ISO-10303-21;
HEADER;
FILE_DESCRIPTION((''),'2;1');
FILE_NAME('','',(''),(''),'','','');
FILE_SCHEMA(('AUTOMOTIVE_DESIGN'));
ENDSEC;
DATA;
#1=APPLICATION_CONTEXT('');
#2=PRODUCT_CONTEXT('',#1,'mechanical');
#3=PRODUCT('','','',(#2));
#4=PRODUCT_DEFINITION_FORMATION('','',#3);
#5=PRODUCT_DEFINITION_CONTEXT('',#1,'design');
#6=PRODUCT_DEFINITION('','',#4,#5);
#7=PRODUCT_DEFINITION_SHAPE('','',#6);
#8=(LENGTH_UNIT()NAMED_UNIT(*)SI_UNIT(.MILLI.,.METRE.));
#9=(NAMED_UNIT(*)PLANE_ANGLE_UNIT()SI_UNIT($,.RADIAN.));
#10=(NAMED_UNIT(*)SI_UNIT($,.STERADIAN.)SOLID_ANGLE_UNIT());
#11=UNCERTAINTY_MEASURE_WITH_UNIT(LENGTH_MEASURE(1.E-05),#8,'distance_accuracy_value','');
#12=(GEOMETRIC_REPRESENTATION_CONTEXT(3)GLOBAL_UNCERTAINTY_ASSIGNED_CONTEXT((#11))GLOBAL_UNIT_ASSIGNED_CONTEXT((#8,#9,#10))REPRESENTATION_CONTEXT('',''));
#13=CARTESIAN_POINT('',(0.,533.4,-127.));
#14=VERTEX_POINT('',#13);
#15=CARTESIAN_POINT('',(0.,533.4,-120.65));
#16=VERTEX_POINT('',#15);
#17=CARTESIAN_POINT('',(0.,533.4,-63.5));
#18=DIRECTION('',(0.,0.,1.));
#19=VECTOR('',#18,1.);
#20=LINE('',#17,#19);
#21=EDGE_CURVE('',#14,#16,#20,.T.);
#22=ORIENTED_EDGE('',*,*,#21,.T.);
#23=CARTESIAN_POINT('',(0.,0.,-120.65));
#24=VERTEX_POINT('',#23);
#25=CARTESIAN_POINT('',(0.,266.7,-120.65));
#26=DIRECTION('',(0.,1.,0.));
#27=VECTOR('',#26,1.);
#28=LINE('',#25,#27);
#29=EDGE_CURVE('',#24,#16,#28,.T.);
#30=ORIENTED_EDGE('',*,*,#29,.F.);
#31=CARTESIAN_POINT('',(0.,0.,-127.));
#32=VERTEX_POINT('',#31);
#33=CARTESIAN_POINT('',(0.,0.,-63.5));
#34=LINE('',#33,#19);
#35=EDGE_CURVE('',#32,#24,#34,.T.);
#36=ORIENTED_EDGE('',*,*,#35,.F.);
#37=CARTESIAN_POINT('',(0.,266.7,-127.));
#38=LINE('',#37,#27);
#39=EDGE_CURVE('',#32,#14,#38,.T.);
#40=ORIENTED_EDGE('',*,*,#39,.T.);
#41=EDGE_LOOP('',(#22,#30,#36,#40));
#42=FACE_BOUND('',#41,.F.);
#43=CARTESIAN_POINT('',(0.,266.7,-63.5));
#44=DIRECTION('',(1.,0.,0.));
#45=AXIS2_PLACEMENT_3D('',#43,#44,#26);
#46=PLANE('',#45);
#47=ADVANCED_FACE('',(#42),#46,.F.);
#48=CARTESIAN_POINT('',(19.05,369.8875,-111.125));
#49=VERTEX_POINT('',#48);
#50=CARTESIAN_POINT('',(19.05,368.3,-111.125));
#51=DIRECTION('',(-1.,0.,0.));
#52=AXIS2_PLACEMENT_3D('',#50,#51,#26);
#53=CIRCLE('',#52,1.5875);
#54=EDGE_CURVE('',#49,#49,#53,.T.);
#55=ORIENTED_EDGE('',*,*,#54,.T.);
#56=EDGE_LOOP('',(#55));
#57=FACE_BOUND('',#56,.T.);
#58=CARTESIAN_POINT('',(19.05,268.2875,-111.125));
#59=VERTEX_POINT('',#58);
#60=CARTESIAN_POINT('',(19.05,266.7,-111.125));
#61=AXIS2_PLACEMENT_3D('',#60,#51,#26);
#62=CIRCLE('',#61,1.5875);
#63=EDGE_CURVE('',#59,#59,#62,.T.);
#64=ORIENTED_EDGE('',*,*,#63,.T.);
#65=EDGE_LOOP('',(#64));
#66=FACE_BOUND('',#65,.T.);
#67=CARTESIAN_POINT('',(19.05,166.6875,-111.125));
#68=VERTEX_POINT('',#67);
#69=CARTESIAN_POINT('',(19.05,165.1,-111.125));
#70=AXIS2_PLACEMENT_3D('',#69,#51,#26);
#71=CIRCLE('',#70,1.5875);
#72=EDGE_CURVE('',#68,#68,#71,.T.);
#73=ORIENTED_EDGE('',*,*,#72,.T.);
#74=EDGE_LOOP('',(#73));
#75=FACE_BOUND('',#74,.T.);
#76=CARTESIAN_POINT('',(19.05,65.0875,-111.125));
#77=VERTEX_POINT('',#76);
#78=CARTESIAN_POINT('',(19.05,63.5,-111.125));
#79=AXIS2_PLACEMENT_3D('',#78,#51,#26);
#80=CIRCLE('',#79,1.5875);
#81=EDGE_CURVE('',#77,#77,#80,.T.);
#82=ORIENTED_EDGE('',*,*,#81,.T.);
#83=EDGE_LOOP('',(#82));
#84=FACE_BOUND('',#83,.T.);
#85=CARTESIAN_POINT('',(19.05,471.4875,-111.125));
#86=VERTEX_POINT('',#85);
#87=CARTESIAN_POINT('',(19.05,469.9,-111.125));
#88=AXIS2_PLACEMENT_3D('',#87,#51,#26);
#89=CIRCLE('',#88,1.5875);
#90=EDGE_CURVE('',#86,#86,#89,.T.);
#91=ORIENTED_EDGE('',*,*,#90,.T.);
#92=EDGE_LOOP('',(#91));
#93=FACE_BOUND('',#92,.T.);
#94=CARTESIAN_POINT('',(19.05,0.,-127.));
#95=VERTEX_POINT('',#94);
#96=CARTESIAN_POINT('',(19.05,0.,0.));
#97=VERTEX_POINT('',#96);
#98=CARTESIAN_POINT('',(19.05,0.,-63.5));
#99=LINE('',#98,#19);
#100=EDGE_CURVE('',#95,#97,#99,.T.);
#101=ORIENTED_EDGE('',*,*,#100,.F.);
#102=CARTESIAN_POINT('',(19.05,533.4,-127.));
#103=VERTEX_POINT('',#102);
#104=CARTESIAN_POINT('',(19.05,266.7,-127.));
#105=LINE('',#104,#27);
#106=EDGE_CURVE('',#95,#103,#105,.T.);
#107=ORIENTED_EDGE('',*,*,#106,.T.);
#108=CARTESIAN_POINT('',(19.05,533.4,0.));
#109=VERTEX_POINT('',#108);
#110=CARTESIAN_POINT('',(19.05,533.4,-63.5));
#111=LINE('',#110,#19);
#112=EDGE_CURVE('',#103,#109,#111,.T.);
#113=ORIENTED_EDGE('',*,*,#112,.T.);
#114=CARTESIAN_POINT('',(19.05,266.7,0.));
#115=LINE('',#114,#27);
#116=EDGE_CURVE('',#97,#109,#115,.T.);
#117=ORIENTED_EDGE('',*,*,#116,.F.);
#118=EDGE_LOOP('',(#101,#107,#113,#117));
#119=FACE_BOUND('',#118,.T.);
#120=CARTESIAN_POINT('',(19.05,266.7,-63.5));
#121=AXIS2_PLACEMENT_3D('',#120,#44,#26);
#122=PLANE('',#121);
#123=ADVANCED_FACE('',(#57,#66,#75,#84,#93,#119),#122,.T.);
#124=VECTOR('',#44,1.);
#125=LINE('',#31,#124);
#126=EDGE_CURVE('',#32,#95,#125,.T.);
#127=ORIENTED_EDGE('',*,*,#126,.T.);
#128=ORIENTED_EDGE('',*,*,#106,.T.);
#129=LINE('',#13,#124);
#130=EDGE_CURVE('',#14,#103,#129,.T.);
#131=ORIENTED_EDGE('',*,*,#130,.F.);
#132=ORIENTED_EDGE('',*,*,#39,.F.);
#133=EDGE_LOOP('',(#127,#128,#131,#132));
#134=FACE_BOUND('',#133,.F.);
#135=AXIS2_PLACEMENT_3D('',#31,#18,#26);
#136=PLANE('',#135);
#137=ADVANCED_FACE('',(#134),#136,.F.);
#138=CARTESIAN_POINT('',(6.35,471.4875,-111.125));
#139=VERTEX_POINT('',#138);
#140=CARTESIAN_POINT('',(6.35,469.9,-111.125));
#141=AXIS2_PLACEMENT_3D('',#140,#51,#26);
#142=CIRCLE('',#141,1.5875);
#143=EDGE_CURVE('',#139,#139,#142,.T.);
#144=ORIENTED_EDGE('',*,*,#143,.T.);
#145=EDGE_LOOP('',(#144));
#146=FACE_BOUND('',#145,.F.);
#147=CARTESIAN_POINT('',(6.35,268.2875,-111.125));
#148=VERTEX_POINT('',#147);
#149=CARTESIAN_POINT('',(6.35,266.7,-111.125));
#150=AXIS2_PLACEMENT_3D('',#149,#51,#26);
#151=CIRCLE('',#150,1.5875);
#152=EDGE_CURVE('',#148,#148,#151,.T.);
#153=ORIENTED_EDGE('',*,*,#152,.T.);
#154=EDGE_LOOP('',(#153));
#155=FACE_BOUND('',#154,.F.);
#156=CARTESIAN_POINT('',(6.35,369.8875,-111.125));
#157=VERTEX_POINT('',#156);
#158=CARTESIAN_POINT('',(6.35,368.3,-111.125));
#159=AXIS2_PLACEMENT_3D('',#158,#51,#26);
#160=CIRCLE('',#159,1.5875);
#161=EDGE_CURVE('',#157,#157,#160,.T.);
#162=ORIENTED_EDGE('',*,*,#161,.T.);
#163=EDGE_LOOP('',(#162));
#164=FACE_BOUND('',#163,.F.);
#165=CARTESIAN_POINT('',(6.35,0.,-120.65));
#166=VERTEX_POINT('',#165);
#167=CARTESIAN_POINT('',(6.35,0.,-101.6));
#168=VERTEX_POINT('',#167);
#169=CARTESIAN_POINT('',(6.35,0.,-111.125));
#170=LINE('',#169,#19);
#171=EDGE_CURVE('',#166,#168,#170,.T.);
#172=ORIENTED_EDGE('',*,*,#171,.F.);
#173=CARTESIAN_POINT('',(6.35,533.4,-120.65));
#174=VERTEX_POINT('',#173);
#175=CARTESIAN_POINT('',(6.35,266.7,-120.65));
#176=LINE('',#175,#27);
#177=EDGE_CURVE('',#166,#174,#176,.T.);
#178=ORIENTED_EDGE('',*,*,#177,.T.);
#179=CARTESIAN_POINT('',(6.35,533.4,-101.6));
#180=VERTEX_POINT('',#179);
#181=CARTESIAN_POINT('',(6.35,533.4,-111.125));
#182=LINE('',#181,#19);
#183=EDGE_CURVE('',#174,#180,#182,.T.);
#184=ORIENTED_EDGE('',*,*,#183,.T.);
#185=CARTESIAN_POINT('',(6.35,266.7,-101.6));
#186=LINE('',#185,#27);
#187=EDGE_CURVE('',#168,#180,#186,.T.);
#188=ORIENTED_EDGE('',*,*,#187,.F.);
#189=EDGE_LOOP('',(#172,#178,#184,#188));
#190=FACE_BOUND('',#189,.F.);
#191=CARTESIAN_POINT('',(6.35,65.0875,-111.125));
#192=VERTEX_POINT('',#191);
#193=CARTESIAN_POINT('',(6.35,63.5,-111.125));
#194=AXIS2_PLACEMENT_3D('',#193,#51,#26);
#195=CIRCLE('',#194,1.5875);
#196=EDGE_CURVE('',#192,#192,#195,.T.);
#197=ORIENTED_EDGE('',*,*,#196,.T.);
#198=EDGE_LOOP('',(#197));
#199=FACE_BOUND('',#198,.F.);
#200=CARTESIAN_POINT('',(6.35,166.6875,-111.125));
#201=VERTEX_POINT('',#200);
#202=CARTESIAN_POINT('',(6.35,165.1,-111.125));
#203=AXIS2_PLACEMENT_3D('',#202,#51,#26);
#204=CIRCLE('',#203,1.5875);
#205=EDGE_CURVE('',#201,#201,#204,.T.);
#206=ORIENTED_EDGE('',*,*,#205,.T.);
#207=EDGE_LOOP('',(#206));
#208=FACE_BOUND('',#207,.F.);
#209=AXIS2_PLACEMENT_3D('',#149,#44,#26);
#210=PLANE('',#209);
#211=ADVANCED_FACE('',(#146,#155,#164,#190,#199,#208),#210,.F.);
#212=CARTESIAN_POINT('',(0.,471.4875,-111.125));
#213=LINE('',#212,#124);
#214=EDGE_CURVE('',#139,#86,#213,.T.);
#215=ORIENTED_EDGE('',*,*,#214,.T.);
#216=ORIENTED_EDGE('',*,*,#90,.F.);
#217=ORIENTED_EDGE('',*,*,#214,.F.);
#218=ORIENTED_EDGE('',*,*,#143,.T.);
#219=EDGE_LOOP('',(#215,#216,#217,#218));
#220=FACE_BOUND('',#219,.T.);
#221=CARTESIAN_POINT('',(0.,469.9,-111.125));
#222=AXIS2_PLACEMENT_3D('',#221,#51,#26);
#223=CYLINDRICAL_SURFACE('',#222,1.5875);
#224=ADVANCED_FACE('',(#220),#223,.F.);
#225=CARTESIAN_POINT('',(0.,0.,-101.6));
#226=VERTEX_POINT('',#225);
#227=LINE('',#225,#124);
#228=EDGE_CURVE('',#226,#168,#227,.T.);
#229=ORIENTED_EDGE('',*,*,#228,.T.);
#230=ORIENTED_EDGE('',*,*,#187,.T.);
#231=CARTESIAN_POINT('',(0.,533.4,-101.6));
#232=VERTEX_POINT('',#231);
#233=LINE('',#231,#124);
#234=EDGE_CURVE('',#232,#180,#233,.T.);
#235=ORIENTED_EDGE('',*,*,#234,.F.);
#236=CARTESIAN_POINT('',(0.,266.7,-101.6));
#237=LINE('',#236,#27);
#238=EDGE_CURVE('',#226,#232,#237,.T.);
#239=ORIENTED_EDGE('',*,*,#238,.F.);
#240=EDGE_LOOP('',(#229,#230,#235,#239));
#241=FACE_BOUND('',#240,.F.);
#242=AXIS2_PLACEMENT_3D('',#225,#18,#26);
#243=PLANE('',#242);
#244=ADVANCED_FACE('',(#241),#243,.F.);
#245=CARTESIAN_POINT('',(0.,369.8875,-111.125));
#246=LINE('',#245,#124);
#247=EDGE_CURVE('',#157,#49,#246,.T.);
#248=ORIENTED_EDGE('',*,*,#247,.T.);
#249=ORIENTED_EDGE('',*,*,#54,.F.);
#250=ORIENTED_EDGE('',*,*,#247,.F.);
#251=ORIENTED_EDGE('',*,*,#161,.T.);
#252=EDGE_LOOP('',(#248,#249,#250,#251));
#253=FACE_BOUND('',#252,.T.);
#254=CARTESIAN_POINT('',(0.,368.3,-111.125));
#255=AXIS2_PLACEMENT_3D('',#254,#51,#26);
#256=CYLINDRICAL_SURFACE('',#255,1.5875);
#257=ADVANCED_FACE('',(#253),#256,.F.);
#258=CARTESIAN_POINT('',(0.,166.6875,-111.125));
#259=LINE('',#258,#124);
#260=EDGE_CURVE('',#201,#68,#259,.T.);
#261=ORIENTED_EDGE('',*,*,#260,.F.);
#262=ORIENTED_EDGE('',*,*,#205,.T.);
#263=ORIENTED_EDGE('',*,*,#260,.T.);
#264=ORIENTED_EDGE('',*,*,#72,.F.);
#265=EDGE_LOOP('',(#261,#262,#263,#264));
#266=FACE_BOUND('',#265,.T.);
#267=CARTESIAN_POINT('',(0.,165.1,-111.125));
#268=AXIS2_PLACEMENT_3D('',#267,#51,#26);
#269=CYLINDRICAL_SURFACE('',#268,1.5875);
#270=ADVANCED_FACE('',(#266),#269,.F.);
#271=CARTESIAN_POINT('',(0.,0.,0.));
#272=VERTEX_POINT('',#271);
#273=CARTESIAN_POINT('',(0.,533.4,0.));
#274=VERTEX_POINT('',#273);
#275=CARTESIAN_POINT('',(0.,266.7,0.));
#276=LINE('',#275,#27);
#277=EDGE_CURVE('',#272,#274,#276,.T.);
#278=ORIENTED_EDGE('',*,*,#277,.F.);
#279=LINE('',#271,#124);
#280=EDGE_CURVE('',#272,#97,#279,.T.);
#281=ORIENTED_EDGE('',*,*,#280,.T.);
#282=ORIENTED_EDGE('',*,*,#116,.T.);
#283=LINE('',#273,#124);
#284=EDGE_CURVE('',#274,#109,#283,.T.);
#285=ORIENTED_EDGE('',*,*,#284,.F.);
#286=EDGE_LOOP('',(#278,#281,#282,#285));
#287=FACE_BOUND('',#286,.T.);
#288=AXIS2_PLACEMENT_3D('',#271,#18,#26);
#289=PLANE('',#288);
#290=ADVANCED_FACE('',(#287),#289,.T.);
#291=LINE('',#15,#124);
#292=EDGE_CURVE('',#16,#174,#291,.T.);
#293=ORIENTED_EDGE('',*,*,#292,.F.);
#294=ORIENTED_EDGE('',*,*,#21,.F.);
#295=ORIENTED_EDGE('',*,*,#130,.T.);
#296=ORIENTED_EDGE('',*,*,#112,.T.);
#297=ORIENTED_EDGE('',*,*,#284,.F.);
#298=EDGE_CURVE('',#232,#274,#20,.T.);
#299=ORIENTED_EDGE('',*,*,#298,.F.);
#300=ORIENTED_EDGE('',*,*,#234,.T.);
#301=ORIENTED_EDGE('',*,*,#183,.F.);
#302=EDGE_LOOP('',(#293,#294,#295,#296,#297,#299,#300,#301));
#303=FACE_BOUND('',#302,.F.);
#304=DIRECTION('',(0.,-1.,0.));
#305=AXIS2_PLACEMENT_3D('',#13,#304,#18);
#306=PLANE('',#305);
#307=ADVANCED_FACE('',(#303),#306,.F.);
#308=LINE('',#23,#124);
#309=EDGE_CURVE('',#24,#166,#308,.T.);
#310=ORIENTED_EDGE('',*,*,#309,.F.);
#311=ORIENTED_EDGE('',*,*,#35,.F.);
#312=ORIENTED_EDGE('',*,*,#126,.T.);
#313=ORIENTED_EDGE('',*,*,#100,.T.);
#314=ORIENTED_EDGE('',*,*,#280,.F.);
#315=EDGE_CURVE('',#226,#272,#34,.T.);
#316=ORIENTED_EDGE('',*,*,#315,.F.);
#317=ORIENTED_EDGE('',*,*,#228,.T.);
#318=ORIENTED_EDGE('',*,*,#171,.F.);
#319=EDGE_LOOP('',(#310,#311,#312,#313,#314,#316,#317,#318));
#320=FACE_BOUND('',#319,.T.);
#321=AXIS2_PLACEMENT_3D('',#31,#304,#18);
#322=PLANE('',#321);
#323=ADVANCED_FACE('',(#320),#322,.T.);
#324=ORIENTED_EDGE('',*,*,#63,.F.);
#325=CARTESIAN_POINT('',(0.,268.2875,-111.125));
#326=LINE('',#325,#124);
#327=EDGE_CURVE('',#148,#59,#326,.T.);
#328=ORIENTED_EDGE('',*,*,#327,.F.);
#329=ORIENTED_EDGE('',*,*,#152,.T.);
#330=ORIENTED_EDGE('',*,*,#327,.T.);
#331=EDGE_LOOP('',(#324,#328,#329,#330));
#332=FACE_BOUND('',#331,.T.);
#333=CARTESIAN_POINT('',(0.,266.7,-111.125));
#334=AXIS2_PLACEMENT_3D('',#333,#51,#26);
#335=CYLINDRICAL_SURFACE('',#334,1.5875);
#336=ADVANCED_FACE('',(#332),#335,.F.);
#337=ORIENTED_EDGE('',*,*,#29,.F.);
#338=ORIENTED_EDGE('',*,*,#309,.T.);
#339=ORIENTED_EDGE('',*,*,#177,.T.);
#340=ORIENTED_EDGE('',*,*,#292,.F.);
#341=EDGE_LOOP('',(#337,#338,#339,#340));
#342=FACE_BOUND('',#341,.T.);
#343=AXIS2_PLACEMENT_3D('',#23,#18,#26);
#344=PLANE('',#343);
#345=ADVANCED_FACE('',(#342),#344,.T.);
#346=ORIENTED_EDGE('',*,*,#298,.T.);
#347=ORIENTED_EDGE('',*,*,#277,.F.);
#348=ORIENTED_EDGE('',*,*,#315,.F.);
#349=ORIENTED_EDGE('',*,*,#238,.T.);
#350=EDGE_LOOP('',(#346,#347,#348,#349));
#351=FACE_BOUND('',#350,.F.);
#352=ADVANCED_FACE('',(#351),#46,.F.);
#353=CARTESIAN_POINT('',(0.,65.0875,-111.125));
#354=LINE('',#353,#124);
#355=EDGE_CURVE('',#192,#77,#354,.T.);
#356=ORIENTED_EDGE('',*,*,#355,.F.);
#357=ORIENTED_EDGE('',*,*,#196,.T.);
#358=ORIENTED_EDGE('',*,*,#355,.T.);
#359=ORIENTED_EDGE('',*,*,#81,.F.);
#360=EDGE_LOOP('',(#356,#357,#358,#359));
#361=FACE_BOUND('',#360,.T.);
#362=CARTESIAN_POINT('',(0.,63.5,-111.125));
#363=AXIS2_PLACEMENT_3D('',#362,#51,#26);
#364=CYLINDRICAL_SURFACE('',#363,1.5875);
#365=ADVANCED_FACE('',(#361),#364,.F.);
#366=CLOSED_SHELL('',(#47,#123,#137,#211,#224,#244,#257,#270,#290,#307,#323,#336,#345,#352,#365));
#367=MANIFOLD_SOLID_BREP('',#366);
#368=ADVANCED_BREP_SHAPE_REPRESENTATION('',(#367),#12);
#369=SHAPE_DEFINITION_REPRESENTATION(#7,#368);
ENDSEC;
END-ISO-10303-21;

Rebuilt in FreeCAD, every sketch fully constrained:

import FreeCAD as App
import Part
import Sketcher
from FreeCAD import Vector
Q = App.Units.Quantity


def add_polygon(sketch, points):
    """Adds a closed chain of lines whose ends are joined by coincident constraints."""
    first, n = sketch.GeometryCount, len(points)
    for a, b in zip(points, points[1:] + points[:1]):
        sketch.addGeometry(Part.LineSegment(App.Vector(*a, 0), App.Vector(*b, 0)), False)
    for i in range(n):
        sketch.addConstraint(Sketcher.Constraint("Coincident", first + i, 2, first + (i + 1) % n, 1))

doc = App.newDocument("Part")
body = doc.addObject("PartDesign::Body", "Body")

sketch1 = doc.addObject("Sketcher::SketchObject", "Sketch")
body.addObject(sketch1)
sketch1.AttachmentSupport = (doc.YZ_Plane, [""])
sketch1.MapMode = "FlatFace"
add_polygon(sketch1, [(0, 0), (0, -127), (533, -127), (533, 0)])
sketch1.addConstraint(Sketcher.Constraint("Vertical", 0))
sketch1.addConstraint(Sketcher.Constraint("Horizontal", 1))
sketch1.addConstraint(Sketcher.Constraint("Vertical", 2))
sketch1.addConstraint(Sketcher.Constraint("Horizontal", 3))
sketch1.addConstraint(Sketcher.Constraint("Coincident", 3, 2, -1, 1))
sketch1.addConstraint(Sketcher.Constraint("DistanceX", 1, 1, 1, 2, Q("21 in")))
sketch1.addConstraint(Sketcher.Constraint("DistanceY", 0, 2, 0, 1, Q("5 in")))
pad1 = doc.addObject("PartDesign::Pad", "Pad")
body.addObject(pad1)
pad1.Profile = sketch1
pad1.Length = Q("0.75 in")

sketch2 = doc.addObject("Sketcher::SketchObject", "Sketch001")
body.addObject(sketch2)
sketch2.AttachmentSupport = (doc.YZ_Plane, [""])
sketch2.MapMode = "FlatFace"
add_polygon(sketch2, [(0, -102), (0, -121), (533, -121), (533, -102)])
sketch2.addConstraint(Sketcher.Constraint("Vertical", 0))
sketch2.addConstraint(Sketcher.Constraint("Horizontal", 1))
sketch2.addConstraint(Sketcher.Constraint("Vertical", 2))
sketch2.addConstraint(Sketcher.Constraint("Horizontal", 3))
sketch2.addConstraint(Sketcher.Constraint("PointOnObject", 0, 2, -2))
sketch2.addConstraint(Sketcher.Constraint("DistanceX", 1, 1, 1, 2, Q("21 in")))
sketch2.addConstraint(Sketcher.Constraint("DistanceY", 2, 2, -1, 1, Q("4 in")))
sketch2.addConstraint(Sketcher.Constraint("DistanceY", 0, 2, 0, 1, Q("0.75 in")))
pocket1 = doc.addObject("PartDesign::Pocket", "Pocket")
body.addObject(pocket1)
pocket1.Profile = sketch2
pocket1.Length = Q("0.25 in")
pocket1.Reversed = True

sketch3 = doc.addObject("Sketcher::SketchObject", "Sketch002")
body.addObject(sketch3)
sketch3.AttachmentSupport = (doc.YZ_Plane, [""])
sketch3.MapMode = "FlatFace"
sketch3.addGeometry(Part.Circle(Vector(469.9, -111.1, 0), Vector(0, 0, 1), 1.6), False)
sketch3.addGeometry(Part.Circle(Vector(368.3, -111.1, 0), Vector(0, 0, 1), 1.6), False)
sketch3.addGeometry(Part.Circle(Vector(266.7, -111.1, 0), Vector(0, 0, 1), 1.6), False)
sketch3.addGeometry(Part.Circle(Vector(165.1, -111.1, 0), Vector(0, 0, 1), 1.6), False)
sketch3.addGeometry(Part.Circle(Vector(63.5, -111.1, 0), Vector(0, 0, 1), 1.6), False)
sketch3.addConstraint(Sketcher.Constraint("Equal", 0, 1))
sketch3.addConstraint(Sketcher.Constraint("Equal", 1, 2))
sketch3.addConstraint(Sketcher.Constraint("Equal", 2, 3))
sketch3.addConstraint(Sketcher.Constraint("Equal", 3, 4))
sketch3.addConstraint(Sketcher.Constraint("Horizontal", 0, 3, 1, 3))
sketch3.addConstraint(Sketcher.Constraint("Horizontal", 1, 3, 2, 3))
sketch3.addConstraint(Sketcher.Constraint("Horizontal", 2, 3, 3, 3))
sketch3.addConstraint(Sketcher.Constraint("Horizontal", 3, 3, 4, 3))
sketch3.addConstraint(Sketcher.Constraint("Diameter", 0, Q("0.125 in")))
sketch3.addConstraint(Sketcher.Constraint("DistanceX", 1, 3, 0, 3, Q("4 in")))
sketch3.addConstraint(Sketcher.Constraint("DistanceX", 2, 3, 1, 3, Q("4 in")))
sketch3.addConstraint(Sketcher.Constraint("DistanceX", 3, 3, 2, 3, Q("4 in")))
sketch3.addConstraint(Sketcher.Constraint("DistanceX", 4, 3, 3, 3, Q("4 in")))
sketch3.addConstraint(Sketcher.Constraint("DistanceX", -1, 1, 0, 3, Q("18.5 in")))
sketch3.addConstraint(Sketcher.Constraint("DistanceY", 0, 3, -1, 1, Q("4.375 in")))
pocket2 = doc.addObject("PartDesign::Pocket", "Pocket001")
body.addObject(pocket2)
pocket2.Profile = sketch3
pocket2.Type = "ThroughAll"
pocket2.Reversed = True

doc.recompute()
